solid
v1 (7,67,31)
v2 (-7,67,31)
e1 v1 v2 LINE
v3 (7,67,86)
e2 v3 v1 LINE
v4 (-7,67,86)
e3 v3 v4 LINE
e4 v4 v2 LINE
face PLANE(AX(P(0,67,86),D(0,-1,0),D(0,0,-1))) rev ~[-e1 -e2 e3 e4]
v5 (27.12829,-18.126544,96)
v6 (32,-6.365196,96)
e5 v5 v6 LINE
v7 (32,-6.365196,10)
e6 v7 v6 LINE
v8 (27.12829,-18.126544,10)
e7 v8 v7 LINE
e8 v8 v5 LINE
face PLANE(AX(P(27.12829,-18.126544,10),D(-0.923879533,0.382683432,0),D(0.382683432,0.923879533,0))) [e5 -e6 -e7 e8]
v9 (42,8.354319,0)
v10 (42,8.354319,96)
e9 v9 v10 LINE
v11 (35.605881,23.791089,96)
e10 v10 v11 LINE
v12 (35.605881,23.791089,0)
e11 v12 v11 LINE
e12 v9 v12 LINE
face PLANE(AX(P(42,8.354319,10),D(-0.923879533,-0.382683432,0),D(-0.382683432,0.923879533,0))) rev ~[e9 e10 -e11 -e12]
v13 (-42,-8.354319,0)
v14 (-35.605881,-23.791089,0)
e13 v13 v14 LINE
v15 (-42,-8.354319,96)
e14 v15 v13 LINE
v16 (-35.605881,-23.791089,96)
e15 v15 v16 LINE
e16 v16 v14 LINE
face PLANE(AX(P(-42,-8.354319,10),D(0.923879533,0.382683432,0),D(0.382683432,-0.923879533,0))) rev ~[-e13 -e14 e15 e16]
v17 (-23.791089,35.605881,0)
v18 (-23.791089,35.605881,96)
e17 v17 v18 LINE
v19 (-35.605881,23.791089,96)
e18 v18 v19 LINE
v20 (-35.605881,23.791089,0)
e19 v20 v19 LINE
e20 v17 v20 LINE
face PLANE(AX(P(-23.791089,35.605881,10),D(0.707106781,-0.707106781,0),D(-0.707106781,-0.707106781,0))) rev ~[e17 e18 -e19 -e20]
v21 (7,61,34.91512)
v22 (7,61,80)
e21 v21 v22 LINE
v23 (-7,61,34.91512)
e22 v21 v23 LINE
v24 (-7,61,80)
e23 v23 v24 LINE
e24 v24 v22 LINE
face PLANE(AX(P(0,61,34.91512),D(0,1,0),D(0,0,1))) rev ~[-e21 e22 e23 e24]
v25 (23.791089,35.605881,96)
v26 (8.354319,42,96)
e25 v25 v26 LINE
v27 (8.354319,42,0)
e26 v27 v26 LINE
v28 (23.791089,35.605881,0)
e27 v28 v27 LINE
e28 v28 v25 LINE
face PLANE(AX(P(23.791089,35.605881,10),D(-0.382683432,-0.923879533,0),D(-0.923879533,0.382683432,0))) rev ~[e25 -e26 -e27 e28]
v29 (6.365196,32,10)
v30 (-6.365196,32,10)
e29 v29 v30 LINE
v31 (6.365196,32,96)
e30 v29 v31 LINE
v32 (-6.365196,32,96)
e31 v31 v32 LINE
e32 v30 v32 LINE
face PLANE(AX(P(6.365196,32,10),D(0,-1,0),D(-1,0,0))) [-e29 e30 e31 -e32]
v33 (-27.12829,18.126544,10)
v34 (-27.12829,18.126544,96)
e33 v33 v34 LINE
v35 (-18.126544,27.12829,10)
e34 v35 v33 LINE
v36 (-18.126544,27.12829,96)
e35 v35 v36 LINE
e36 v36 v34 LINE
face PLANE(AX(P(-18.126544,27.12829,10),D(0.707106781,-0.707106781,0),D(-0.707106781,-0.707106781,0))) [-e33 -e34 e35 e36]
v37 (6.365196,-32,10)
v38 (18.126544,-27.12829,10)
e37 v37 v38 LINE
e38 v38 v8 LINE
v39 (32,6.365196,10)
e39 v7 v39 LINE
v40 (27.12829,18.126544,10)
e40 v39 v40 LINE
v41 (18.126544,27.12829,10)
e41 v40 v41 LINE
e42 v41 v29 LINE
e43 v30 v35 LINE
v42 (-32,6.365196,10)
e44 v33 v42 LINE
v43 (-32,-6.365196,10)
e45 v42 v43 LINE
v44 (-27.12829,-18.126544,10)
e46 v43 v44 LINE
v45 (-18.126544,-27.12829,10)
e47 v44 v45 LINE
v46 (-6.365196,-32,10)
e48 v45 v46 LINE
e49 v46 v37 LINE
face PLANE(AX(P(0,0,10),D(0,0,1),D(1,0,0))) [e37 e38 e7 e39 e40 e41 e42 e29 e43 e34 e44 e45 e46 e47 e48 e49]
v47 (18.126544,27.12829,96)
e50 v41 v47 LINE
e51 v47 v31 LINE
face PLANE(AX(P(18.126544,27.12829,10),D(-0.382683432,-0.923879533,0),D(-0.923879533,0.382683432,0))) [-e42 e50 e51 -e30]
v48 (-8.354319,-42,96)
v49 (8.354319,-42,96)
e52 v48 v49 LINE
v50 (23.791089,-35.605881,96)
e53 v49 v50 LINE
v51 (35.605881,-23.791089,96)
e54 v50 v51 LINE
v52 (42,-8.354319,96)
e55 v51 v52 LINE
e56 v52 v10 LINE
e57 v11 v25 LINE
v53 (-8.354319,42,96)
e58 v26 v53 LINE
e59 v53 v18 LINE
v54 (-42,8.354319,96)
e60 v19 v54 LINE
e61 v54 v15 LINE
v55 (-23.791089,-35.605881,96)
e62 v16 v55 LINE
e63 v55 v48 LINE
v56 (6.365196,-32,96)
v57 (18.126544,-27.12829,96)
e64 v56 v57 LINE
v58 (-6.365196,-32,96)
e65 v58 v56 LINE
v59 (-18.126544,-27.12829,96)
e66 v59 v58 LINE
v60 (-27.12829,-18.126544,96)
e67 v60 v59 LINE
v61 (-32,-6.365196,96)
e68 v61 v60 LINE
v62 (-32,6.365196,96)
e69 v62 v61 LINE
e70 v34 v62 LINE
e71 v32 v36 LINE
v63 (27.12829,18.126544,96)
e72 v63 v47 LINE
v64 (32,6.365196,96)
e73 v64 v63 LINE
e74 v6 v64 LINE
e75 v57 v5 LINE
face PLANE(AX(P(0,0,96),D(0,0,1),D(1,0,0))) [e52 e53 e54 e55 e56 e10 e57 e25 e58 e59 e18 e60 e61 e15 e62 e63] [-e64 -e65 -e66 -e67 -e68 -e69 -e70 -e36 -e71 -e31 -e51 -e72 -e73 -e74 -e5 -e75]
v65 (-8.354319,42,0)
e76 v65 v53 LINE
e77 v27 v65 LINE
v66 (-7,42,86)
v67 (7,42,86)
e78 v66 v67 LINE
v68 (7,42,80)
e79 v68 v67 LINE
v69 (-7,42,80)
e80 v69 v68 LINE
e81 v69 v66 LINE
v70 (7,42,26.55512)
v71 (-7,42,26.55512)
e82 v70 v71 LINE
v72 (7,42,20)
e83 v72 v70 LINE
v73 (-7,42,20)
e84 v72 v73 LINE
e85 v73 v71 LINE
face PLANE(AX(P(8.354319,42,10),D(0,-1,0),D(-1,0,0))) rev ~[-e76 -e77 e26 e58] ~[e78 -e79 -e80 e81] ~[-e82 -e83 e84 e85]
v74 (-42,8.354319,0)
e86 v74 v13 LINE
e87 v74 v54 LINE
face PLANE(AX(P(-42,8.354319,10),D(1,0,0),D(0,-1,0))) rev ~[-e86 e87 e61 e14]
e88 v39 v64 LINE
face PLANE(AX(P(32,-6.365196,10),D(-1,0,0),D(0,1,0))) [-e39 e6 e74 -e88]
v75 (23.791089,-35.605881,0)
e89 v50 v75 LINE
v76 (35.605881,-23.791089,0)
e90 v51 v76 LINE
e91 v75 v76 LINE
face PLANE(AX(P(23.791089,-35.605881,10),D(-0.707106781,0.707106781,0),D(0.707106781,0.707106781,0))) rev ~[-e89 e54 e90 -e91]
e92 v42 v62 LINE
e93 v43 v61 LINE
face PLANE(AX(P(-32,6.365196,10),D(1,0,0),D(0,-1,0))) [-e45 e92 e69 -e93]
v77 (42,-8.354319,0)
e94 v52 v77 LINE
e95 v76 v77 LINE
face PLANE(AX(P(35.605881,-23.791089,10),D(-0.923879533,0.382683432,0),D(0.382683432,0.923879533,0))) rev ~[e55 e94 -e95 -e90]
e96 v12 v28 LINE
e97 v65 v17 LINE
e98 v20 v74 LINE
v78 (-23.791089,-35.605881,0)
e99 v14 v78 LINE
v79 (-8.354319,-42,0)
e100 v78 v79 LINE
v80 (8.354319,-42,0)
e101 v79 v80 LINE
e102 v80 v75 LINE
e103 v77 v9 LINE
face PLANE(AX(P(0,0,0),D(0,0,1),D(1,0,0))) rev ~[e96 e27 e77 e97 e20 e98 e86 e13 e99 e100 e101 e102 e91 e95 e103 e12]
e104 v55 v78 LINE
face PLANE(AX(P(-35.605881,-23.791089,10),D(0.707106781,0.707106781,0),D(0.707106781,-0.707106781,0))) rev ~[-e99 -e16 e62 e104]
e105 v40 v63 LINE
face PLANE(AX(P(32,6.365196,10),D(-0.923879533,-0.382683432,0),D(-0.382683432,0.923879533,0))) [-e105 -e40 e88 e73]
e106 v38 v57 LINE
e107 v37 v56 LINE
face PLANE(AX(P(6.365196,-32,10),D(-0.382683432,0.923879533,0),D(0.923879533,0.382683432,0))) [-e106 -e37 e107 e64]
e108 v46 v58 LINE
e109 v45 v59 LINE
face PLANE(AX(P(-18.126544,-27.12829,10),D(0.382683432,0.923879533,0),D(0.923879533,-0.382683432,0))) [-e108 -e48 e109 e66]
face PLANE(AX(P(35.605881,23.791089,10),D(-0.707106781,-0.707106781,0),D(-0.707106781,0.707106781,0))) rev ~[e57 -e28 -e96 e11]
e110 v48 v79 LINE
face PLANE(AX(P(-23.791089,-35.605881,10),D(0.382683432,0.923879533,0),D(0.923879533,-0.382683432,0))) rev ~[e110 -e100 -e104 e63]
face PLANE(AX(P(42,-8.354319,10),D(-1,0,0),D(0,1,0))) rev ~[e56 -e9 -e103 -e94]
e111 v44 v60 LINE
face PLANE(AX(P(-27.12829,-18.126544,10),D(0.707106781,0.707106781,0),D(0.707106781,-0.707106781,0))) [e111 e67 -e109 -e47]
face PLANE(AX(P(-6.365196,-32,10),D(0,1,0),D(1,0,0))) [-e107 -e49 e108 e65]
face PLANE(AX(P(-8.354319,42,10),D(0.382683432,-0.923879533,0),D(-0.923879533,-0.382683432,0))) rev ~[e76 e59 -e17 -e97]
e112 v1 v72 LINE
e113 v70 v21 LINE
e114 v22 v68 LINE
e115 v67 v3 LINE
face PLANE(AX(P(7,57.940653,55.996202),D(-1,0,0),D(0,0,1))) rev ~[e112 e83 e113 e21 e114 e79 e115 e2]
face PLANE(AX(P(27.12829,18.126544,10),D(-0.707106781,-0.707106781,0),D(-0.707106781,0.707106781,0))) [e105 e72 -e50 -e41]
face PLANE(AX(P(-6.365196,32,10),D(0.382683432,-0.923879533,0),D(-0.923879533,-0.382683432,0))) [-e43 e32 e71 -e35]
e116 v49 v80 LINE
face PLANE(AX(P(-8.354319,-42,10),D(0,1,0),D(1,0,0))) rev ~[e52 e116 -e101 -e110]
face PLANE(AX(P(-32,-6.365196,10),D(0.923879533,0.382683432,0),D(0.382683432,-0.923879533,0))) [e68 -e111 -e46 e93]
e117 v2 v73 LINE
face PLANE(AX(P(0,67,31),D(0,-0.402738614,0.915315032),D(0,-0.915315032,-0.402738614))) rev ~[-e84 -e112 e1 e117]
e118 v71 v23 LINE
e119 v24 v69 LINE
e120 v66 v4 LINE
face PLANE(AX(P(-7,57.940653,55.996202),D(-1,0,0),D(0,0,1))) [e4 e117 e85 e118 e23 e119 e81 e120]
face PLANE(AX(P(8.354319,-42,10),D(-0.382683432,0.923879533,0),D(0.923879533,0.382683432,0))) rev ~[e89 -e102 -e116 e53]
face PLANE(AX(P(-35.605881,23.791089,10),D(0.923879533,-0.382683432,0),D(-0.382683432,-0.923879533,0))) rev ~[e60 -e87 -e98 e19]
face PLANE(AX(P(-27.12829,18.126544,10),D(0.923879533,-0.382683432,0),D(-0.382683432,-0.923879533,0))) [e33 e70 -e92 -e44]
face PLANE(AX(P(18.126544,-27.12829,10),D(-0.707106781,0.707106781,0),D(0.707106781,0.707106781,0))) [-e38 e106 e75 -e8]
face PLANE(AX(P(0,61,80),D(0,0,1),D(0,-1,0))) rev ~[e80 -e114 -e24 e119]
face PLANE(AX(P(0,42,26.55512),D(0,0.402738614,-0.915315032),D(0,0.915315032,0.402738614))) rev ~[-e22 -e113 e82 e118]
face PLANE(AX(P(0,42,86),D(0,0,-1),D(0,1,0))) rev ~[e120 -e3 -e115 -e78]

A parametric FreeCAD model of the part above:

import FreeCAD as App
import Part
import Sketcher
from FreeCAD import Vector
Q = App.Units.Quantity


def add_polygon(sketch, points):
    """Adds a closed chain of lines whose ends are joined by coincident constraints."""
    first, n = sketch.GeometryCount, len(points)
    for a, b in zip(points, points[1:] + points[:1]):
        sketch.addGeometry(Part.LineSegment(App.Vector(*a, 0), App.Vector(*b, 0)), False)
    for i in range(n):
        sketch.addConstraint(Sketcher.Constraint("Coincident", first + i, 2, first + (i + 1) % n, 1))

doc = App.newDocument("Part")
params = doc.addObject("Spreadsheet::Sheet", "Params")
for row, (alias, value) in enumerate([
    ("pad1_length", "10 mm"),
    ("pad2_length", "86 mm"),
    ("sketch3_width", "25 mm"),
    ("sketch3_width2", "19 mm"),
    ("sketch3_height", "6 mm"),
    ("sketch3_height2", "55 mm"),
    ("pad3_length", "14 mm"),
], start=1):
    params.set(f"A{row}", alias)
    params.set(f"B{row}", "=" + value)
    params.setAlias(f"B{row}", alias)

body = doc.addObject("PartDesign::Body", "Body")

sketch1 = doc.addObject("Sketcher::SketchObject", "Sketch")
body.addObject(sketch1)
sketch1.AttachmentSupport = (doc.XY_Plane, [""])
sketch1.MapMode = "FlatFace"
add_polygon(sketch1, [(42, -8.354319), (42, 8.354319), (35.605881, 23.791089), (23.791089, 35.605881), (8.354319, 42), (-8.354319, 42), (-23.791089, 35.605881), (-35.605881, 23.791089), (-42, 8.354319), (-42, -8.354319), (-35.605881, -23.791089), (-23.791089, -35.605881), (-8.354319, -42), (8.354319, -42), (23.791089, -35.605881), (35.605881, -23.791089)])
sketch1.addConstraint([
    Sketcher.Constraint("Vertical", 0),
    Sketcher.Constraint("Horizontal", 4),
    Sketcher.Constraint("Vertical", 8),
    Sketcher.Constraint("Horizontal", 12),
    Sketcher.Constraint("Symmetric", 0, 2, 8, 2, -1, 1),
    Sketcher.Constraint("Symmetric", 1, 2, 9, 2, -1, 1),
    Sketcher.Constraint("Symmetric", 2, 2, 10, 2, -1, 1),
    Sketcher.Constraint("Symmetric", 3, 2, 11, 2, -1, 1),
    Sketcher.Constraint("Symmetric", 5, 2, 13, 2, -1, 1),
    Sketcher.Constraint("Symmetric", 6, 2, 14, 2, -1, 1),
    Sketcher.Constraint("Symmetric", 2, 2, 5, 2, -2),
    Sketcher.Constraint("Symmetric", 1, 2, 6, 2, -2),
    Sketcher.Constraint("Perpendicular", 1, 5),
    Sketcher.Constraint("Perpendicular", 2, 6),
    Sketcher.Constraint("Perpendicular", 3, 7),
    Sketcher.Constraint("Perpendicular", 9, 13),
    Sketcher.Constraint("Perpendicular", 11, 15),
    Sketcher.Constraint("Horizontal", 0, 2, 7, 2),
    Sketcher.Constraint("Equal", 12, 0),
    Sketcher.Constraint("Equal", 1, 2),
    Sketcher.Constraint("Equal", 2, 3),
    Sketcher.Constraint("DistanceX", -1, 1, 0, 2, Q("42 mm")),
    Sketcher.Constraint("Angle", 1, Q("112.5 deg")),
    Sketcher.Constraint("DistanceX", 4, 2, 4, 1, Q("16.708639 mm")),
])
pad1 = doc.addObject("PartDesign::Pad", "Pad")
body.addObject(pad1)
pad1.Profile = sketch1
pad1.setExpression("Length", "Params.pad1_length")

sketch2 = doc.addObject("Sketcher::SketchObject", "Sketch001")
body.addObject(sketch2)
sketch2.AttachmentSupport = (doc.XY_Plane, [""])
sketch2.MapMode = "FlatFace"
sketch2.AttachmentOffset = App.Placement(Vector(0, 0, 10), App.Rotation())
add_polygon(sketch2, [(42, -8.354319), (42, 8.354319), (35.605881, 23.791089), (23.791089, 35.605881), (8.354319, 42), (-8.354319, 42), (-23.791089, 35.605881), (-35.605881, 23.791089), (-42, 8.354319), (-42, -8.354319), (-35.605881, -23.791089), (-23.791089, -35.605881), (-8.354319, -42), (8.354319, -42), (23.791089, -35.605881), (35.605881, -23.791089)])
add_polygon(sketch2, [(18.126544, 27.12829), (27.12829, 18.126544), (32, 6.365196), (32, -6.365196), (27.12829, -18.126544), (18.126544, -27.12829), (6.365196, -32), (-6.365196, -32), (-18.126544, -27.12829), (-27.12829, -18.126544), (-32, -6.365196), (-32, 6.365196), (-27.12829, 18.126544), (-18.126544, 27.12829), (-6.365196, 32), (6.365196, 32)])
sketch2.addConstraint([
    Sketcher.Constraint("Vertical", 0),
    Sketcher.Constraint("Horizontal", 4),
    Sketcher.Constraint("Vertical", 8),
    Sketcher.Constraint("Horizontal", 12),
    Sketcher.Constraint("Vertical", 18),
    Sketcher.Constraint("Horizontal", 22),
    Sketcher.Constraint("Vertical", 26),
    Sketcher.Constraint("Horizontal", 30),
    Sketcher.Constraint("Symmetric", 0, 2, 8, 2, -1, 1),
    Sketcher.Constraint("Symmetric", 1, 2, 9, 2, -1, 1),
    Sketcher.Constraint("Symmetric", 2, 2, 10, 2, -1, 1),
    Sketcher.Constraint("Symmetric", 3, 2, 11, 2, -1, 1),
    Sketcher.Constraint("Symmetric", 5, 2, 13, 2, -1, 1),
    Sketcher.Constraint("Symmetric", 6, 2, 14, 2, -1, 1),
    Sketcher.Constraint("Symmetric", 16, 2, 24, 2, -1, 1),
    Sketcher.Constraint("Symmetric", 17, 2, 25, 2, -1, 1),
    Sketcher.Constraint("Symmetric", 19, 2, 27, 2, -1, 1),
    Sketcher.Constraint("Symmetric", 20, 2, 28, 2, -1, 1),
    Sketcher.Constraint("Symmetric", 21, 2, 29, 2, -1, 1),
    Sketcher.Constraint("Symmetric", 23, 2, 31, 2, -1, 1),
    Sketcher.Constraint("Symmetric", 2, 2, 5, 2, -2),
    Sketcher.Constraint("Symmetric", 1, 2, 6, 2, -2),
    Sketcher.Constraint("Symmetric", 20, 2, 23, 2, -2),
    Sketcher.Constraint("Symmetric", 19, 2, 24, 2, -2),
    Sketcher.Constraint("Perpendicular", 1, 5),
    Sketcher.Constraint("Perpendicular", 2, 6),
    Sketcher.Constraint("Perpendicular", 3, 7),
    Sketcher.Constraint("Perpendicular", 9, 13),
    Sketcher.Constraint("Perpendicular", 11, 15),
    Sketcher.Constraint("Perpendicular", 14, 16),
    Sketcher.Constraint("Perpendicular", 13, 17),
    Sketcher.Constraint("Parallel", 15, 19),
    Sketcher.Constraint("Perpendicular", 17, 21),
    Sketcher.Constraint("Perpendicular", 19, 23),
    Sketcher.Constraint("Perpendicular", 23, 27),
    Sketcher.Constraint("Perpendicular", 27, 31),
    Sketcher.Constraint("Horizontal", 0, 2, 7, 2),
    Sketcher.Constraint("Equal", 12, 0),
    Sketcher.Constraint("Equal", 30, 18),
    Sketcher.Constraint("Equal", 1, 2),
    Sketcher.Constraint("Equal", 2, 3),
    Sketcher.Constraint("Equal", 16, 17),
    Sketcher.Constraint("Equal", 20, 21),
    Sketcher.Constraint("DistanceX", -1, 1, 0, 2, Q("42 mm")),
    Sketcher.Constraint("DistanceX", -1, 1, 17, 2, Q("32 mm")),
    Sketcher.Constraint("Angle", 1, Q("112.5 deg")),
    Sketcher.Constraint("DistanceX", 4, 2, 4, 1, Q("16.708639 mm")),
    Sketcher.Constraint("DistanceX", 22, 2, 22, 1, Q("12.730392 mm")),
])
pad2 = doc.addObject("PartDesign::Pad", "Pad001")
body.addObject(pad2)
pad2.Profile = sketch2
pad2.setExpression("Length", "Params.pad2_length")

sketch3 = doc.addObject("Sketcher::SketchObject", "Sketch002")
body.addObject(sketch3)
sketch3.AttachmentSupport = (doc.YZ_Plane, [""])
sketch3.MapMode = "FlatFace"
add_polygon(sketch3, [(67, 86), (42, 86), (42, 80), (61, 80), (61, 34.91512), (42, 26.55512), (42, 20), (67, 31)])
sketch3.addConstraint([
    Sketcher.Constraint("Horizontal", 0),
    Sketcher.Constraint("Vertical", 1),
    Sketcher.Constraint("Horizontal", 2),
    Sketcher.Constraint("Vertical", 3),
    Sketcher.Constraint("Vertical", 5),
    Sketcher.Constraint("Vertical", 7),
    Sketcher.Constraint("Parallel", 4, 6),
    Sketcher.Constraint("Vertical", 1, 2, 4, 2),
    Sketcher.Constraint("DistanceX", 0, 2, 0, 1, Q("25 mm")),
    Sketcher.Constraint("DistanceX", 2, 1, 2, 2, Q("19 mm")),
    Sketcher.Constraint("DistanceY", 1, 2, 1, 1, Q("6 mm")),
    Sketcher.Constraint("DistanceY", 7, 1, 7, 2, Q("55 mm")),
    Sketcher.Constraint("DistanceX", -1, 1, 0, 2, Q("42 mm")),
    Sketcher.Constraint("DistanceY", -1, 1, 0, 2, Q("86 mm")),
    Sketcher.Constraint("DistanceY", -1, 1, 5, 2, Q("20 mm")),
    Sketcher.Constraint("DistanceY", 3, 2, 3, 1, Q("45.08488 mm")),
])
sketch3.setExpression("Constraints[16]", "Params.sketch3_width")
sketch3.setExpression("Constraints[17]", "Params.sketch3_width2")
sketch3.setExpression("Constraints[18]", "Params.sketch3_height")
sketch3.setExpression("Constraints[19]", "Params.sketch3_height2")
pad3 = doc.addObject("PartDesign::Pad", "Pad002")
body.addObject(pad3)
pad3.Profile = sketch3
pad3.setExpression("Length", "Params.pad3_length")
pad3.Midplane = True

doc.recompute()
